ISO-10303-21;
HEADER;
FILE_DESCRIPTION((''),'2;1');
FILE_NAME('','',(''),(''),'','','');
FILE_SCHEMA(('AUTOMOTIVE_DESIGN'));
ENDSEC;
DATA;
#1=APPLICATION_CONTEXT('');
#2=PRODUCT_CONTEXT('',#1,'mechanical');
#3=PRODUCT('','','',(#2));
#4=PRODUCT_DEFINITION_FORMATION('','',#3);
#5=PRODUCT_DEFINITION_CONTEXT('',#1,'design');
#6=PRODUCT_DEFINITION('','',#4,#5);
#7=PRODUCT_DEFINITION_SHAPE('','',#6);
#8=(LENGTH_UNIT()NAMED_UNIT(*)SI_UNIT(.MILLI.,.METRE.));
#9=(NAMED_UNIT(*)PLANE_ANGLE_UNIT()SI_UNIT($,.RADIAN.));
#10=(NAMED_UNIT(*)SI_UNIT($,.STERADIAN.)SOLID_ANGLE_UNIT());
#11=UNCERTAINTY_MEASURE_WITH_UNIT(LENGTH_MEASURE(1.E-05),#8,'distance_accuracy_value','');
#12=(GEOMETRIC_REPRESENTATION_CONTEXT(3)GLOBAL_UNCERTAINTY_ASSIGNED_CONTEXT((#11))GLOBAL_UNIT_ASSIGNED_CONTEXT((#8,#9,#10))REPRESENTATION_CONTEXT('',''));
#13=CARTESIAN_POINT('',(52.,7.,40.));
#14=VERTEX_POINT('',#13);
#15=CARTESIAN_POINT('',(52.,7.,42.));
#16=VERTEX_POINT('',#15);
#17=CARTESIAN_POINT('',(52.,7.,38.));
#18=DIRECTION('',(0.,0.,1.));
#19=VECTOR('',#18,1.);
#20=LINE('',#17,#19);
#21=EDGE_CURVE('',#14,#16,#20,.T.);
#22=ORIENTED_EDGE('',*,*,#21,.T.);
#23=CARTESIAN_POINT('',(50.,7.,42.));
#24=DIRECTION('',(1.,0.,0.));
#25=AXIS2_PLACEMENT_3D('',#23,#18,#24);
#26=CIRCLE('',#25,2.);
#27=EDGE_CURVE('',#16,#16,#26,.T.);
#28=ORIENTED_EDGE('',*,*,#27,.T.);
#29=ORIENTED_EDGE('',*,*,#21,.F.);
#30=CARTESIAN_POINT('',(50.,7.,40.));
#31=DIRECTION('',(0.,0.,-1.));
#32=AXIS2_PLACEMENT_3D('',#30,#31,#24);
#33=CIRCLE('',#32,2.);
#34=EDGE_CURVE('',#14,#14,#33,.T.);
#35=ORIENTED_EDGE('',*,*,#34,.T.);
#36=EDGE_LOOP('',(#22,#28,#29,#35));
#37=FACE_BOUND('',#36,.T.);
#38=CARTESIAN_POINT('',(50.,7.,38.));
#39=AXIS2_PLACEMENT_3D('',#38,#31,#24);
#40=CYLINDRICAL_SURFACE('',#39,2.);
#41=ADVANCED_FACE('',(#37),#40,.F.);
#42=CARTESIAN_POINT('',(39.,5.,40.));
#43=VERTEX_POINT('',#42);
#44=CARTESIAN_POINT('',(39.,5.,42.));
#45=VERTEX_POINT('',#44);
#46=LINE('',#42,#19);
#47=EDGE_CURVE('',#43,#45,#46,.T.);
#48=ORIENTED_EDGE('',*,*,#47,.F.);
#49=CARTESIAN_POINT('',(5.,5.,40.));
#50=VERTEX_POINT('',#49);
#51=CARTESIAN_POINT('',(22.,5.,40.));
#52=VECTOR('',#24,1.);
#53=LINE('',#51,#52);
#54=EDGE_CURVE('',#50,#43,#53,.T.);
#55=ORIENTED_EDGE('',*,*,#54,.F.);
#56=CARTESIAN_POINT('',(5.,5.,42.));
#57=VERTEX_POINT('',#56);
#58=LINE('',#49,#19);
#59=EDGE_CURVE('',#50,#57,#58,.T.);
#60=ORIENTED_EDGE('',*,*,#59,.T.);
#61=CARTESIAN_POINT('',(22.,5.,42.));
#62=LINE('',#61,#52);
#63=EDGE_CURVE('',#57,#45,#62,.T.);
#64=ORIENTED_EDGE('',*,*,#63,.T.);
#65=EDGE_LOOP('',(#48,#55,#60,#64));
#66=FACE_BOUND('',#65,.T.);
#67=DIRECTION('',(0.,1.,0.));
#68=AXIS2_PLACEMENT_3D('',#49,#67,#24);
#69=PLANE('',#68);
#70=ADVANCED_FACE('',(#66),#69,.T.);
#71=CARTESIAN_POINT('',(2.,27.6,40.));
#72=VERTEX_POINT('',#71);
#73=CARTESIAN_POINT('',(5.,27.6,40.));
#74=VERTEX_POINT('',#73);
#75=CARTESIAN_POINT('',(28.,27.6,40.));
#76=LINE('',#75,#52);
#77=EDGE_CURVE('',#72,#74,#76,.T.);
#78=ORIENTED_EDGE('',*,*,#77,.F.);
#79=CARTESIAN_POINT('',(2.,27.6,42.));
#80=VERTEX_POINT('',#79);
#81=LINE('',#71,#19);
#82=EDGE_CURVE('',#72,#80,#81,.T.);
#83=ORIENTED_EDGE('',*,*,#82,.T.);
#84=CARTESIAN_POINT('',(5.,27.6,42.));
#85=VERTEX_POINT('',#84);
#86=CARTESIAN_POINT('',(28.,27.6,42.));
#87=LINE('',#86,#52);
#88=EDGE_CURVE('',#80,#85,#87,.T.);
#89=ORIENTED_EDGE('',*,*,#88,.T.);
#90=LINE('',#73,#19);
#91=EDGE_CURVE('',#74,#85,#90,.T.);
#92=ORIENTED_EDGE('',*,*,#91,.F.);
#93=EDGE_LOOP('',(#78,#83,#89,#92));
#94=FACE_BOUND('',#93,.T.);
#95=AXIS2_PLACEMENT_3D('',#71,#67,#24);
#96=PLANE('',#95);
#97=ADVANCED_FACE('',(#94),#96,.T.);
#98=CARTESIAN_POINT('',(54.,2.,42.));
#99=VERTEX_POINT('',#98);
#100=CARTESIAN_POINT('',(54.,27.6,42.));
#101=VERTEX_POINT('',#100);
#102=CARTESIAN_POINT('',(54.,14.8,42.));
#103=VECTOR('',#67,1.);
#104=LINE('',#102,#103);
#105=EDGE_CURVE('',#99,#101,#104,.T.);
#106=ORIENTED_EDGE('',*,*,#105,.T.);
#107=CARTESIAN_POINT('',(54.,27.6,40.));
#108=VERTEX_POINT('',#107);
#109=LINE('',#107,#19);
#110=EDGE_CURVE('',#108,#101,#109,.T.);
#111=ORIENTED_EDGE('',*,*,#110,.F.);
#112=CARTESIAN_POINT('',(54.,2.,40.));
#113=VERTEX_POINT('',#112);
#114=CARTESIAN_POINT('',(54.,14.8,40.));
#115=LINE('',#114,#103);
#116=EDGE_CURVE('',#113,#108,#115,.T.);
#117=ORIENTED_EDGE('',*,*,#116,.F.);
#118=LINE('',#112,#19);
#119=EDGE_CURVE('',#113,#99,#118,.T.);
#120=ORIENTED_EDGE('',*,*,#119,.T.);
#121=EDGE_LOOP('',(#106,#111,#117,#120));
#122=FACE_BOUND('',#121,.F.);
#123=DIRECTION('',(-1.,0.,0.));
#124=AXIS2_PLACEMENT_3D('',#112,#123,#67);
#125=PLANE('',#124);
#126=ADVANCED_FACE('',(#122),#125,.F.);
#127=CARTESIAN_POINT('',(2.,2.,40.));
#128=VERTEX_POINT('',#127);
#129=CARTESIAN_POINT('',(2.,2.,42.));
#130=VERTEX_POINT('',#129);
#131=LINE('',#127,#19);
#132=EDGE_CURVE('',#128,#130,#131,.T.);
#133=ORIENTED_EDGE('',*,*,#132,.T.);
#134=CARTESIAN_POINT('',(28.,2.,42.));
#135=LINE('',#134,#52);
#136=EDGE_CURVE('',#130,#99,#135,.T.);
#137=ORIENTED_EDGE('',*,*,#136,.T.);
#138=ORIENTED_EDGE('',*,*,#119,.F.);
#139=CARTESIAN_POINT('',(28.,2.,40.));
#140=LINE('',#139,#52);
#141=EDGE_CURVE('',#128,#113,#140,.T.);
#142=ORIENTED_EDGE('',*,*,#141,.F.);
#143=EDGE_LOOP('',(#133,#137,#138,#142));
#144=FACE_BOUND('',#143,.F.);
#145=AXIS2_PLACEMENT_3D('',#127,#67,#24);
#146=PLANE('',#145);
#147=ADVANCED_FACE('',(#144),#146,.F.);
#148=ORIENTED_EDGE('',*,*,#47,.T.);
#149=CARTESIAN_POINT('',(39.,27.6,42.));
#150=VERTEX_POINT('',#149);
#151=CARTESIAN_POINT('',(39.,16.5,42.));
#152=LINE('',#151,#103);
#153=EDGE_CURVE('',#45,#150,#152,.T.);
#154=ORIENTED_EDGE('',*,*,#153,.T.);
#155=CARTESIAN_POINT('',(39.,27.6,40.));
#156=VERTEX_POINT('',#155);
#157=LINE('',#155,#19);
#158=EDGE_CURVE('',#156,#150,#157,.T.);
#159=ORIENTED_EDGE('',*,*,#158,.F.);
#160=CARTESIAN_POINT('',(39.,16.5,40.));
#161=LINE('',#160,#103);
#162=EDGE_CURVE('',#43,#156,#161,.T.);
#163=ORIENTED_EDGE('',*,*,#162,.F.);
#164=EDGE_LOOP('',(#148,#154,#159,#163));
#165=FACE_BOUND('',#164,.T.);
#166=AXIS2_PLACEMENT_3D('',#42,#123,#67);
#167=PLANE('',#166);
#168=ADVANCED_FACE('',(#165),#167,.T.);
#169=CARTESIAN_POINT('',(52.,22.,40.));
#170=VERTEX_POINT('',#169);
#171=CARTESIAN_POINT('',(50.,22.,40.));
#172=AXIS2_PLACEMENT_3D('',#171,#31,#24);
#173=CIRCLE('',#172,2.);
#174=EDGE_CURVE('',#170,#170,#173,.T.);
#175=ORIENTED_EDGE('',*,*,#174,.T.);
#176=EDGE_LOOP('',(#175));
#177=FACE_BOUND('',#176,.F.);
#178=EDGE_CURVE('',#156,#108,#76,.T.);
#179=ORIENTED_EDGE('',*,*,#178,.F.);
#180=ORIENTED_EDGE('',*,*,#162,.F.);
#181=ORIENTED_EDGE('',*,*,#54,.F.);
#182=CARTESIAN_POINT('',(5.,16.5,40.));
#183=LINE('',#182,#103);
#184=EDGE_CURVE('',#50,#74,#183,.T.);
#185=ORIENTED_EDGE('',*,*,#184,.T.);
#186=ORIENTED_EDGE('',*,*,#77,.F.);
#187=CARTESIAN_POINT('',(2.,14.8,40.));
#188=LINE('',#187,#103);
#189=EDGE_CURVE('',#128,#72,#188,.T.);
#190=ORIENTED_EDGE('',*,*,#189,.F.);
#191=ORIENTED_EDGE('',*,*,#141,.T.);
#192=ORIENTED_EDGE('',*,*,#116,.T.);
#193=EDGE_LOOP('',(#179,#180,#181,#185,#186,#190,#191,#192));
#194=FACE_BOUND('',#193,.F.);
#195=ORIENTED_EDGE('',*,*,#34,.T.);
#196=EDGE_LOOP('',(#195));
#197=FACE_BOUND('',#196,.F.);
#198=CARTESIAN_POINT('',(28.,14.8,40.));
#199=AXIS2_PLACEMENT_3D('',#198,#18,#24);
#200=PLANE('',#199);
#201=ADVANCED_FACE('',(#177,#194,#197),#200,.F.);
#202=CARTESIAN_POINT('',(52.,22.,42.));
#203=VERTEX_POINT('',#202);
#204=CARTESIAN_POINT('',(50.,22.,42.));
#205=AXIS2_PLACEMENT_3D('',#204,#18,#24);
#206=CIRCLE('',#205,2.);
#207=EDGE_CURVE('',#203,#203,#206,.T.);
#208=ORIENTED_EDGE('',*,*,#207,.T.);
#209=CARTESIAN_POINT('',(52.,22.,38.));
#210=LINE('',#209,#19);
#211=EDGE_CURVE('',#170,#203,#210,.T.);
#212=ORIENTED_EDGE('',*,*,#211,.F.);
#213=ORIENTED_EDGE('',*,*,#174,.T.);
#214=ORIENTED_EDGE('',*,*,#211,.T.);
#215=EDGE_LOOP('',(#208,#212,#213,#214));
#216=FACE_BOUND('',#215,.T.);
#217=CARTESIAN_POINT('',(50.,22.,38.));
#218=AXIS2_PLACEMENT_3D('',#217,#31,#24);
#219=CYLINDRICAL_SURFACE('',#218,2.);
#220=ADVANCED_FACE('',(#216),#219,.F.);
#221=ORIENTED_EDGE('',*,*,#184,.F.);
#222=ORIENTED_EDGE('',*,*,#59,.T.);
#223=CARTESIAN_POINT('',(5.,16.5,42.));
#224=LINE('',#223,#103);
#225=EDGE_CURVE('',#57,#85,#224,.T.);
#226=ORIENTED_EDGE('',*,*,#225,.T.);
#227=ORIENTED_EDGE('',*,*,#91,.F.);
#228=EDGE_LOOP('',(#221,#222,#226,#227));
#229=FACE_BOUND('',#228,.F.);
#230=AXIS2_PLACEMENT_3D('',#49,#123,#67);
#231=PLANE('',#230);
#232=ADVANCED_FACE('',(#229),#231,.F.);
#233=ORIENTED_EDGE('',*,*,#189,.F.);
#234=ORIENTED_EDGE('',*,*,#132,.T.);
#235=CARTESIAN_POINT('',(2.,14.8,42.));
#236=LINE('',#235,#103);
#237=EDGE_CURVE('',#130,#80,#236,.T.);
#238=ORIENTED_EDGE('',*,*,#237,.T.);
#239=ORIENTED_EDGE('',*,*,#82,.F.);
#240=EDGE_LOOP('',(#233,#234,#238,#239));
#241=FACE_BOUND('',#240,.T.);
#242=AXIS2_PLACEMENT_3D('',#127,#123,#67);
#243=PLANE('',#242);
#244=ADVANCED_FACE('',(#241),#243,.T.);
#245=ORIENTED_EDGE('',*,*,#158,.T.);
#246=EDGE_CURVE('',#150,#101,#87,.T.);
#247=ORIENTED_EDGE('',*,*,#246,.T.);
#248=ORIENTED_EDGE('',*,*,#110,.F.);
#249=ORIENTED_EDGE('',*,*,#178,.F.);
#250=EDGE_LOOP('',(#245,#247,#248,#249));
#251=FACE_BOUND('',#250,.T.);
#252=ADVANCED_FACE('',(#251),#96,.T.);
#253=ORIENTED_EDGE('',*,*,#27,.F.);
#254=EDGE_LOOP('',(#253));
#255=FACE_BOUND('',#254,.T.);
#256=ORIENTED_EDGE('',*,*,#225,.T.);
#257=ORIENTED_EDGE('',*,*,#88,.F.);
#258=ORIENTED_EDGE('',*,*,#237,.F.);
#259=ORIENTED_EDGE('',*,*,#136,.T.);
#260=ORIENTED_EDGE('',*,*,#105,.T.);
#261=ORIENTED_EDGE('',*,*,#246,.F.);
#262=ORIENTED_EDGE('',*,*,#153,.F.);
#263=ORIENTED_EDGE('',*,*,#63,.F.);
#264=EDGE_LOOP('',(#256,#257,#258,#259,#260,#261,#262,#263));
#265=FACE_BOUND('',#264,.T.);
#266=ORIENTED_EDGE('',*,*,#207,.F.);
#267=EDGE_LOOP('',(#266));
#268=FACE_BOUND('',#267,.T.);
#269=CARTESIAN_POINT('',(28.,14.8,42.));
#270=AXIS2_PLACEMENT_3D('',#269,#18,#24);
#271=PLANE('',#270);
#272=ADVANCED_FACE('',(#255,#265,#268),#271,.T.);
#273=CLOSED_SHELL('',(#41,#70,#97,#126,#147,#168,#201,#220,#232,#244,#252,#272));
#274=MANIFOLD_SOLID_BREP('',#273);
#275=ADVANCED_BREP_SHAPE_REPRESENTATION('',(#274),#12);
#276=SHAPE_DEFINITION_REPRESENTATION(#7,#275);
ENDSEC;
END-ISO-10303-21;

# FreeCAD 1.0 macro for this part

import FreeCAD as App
import Part
import Sketcher


def add_polygon(sketch, points):
    """Adds a closed chain of lines whose ends are joined by coincident constraints."""
    first, n = sketch.GeometryCount, len(points)
    for a, b in zip(points, points[1:] + points[:1]):
        sketch.addGeometry(Part.LineSegment(App.Vector(*a, 0), App.Vector(*b, 0)), False)
    for i in range(n):
        sketch.addConstraint(Sketcher.Constraint("Coincident", first + i, 2, first + (i + 1) % n, 1))

doc = App.newDocument("Part")
params = doc.addObject("Spreadsheet::Sheet", "Params")
for row, (alias, value) in enumerate([
    ("sketch1_diameter", "4 mm"),
    ("pad1_length", "4 mm"),
    ("sketch2_diameter", "4 mm"),
    ("pad2_length", "4 mm"),
    ("sketch3_width", "34 mm"),
    ("sketch3_height", "23 mm"),
    ("pad3_length", "2 mm"),
    ("sketch4_width", "52 mm"),
    ("sketch4_height", "25.6 mm"),
    ("pad4_length", "2 mm"),
], start=1):
    params.set(f"A{row}", alias)
    params.set(f"B{row}", "=" + value)
    params.setAlias(f"B{row}", alias)

body = doc.addObject("PartDesign::Body", "Body")

sketch1 = body.newObject("Sketcher::SketchObject", "Sketch")
sketch1.AttachmentSupport = (doc.getObject("XY_Plane"), [""])
sketch1.MapMode = "FlatFace"
sketch1.AttachmentOffset = App.Placement(App.Vector(0, 0, 38), App.Rotation())
sketch1.addGeometry(Part.Circle(App.Vector(50, 7, 0), App.Vector(0, 0, 1), 2), False)
sketch1.addConstraint([
    Sketcher.Constraint("Diameter", 0, 4.0),
    Sketcher.Constraint("DistanceX", -1, 1, 0, 3, 50.0),
    Sketcher.Constraint("DistanceY", -1, 1, 0, 3, 7.0),
])
sketch1.setExpression("Constraints[0]", "Params.sketch1_diameter")
pad1 = body.newObject("PartDesign::Pad", "Pad")
pad1.Profile = sketch1
pad1.setExpression("Length", "Params.pad1_length")
body2 = doc.addObject("PartDesign::Body", "Body001")

sketch2 = body2.newObject("Sketcher::SketchObject", "Sketch001")
sketch2.AttachmentSupport = (doc.getObject("XY_Plane001"), [""])
sketch2.MapMode = "FlatFace"
sketch2.AttachmentOffset = App.Placement(App.Vector(0, 0, 38), App.Rotation())
sketch2.addGeometry(Part.Circle(App.Vector(50, 22, 0), App.Vector(0, 0, 1), 2), False)
sketch2.addConstraint([
    Sketcher.Constraint("Diameter", 0, 4.0),
    Sketcher.Constraint("DistanceX", -1, 1, 0, 3, 50.0),
    Sketcher.Constraint("DistanceY", -1, 1, 0, 3, 22.0),
])
sketch2.setExpression("Constraints[0]", "Params.sketch2_diameter")
pad2 = body2.newObject("PartDesign::Pad", "Pad001")
pad2.Profile = sketch2
pad2.setExpression("Length", "Params.pad2_length")
body3 = doc.addObject("PartDesign::Body", "Body002")
body3.AllowCompound = True

sketch3 = body3.newObject("Sketcher::SketchObject", "Sketch002")
sketch3.AttachmentSupport = (doc.getObject("XY_Plane002"), [""])
sketch3.MapMode = "FlatFace"
sketch3.AttachmentOffset = App.Placement(App.Vector(0, 0, 40), App.Rotation())
add_polygon(sketch3, [(5, 28), (5, 5), (39, 5), (39, 28)])
sketch3.addConstraint([
    Sketcher.Constraint("Vertical", 0),
    Sketcher.Constraint("Horizontal", 1),
    Sketcher.Constraint("Vertical", 2),
    Sketcher.Constraint("Horizontal", 3),
    Sketcher.Constraint("DistanceX", 1, 1, 1, 2, 34.0),
    Sketcher.Constraint("DistanceY", 0, 2, 0, 1, 23.0),
    Sketcher.Constraint("DistanceX", -1, 1, 0, 2, 5.0),
    Sketcher.Constraint("DistanceY", -1, 1, 0, 2, 5.0),
])
sketch3.setExpression("Constraints[8]", "Params.sketch3_width")
sketch3.setExpression("Constraints[9]", "Params.sketch3_height")
pad3 = body3.newObject("PartDesign::Pad", "Pad002")
pad3.Profile = sketch3
pad3.setExpression("Length", "Params.pad3_length")
doc.recompute()

boolean = body3.newObject("PartDesign::Boolean", "Boolean")
boolean.Type = "Fuse"
boolean.addObjects([body])
doc.recompute()

boolean2 = body3.newObject("PartDesign::Boolean", "Boolean001")
boolean2.Type = "Fuse"
boolean2.addObjects([body2])
body4 = doc.addObject("PartDesign::Body", "Body003")

sketch4 = body4.newObject("Sketcher::SketchObject", "Sketch003")
sketch4.AttachmentSupport = (doc.getObject("XY_Plane003"), [""])
sketch4.MapMode = "FlatFace"
sketch4.AttachmentOffset = App.Placement(App.Vector(0, 0, 40), App.Rotation())
add_polygon(sketch4, [(2, 28), (2, 2), (54, 2), (54, 28)])
sketch4.addConstraint([
    Sketcher.Constraint("Vertical", 0),
    Sketcher.Constraint("Horizontal", 1),
    Sketcher.Constraint("Vertical", 2),
    Sketcher.Constraint("Horizontal", 3),
    Sketcher.Constraint("DistanceX", 1, 1, 1, 2, 52.0),
    Sketcher.Constraint("DistanceY", 0, 2, 0, 1, 25.6),
    Sketcher.Constraint("DistanceX", -1, 1, 0, 2, 2.0),
    Sketcher.Constraint("DistanceY", -1, 1, 0, 2, 2.0),
])
sketch4.setExpression("Constraints[8]", "Params.sketch4_width")
sketch4.setExpression("Constraints[9]", "Params.sketch4_height")
pad4 = body4.newObject("PartDesign::Pad", "Pad003")
pad4.Profile = sketch4
pad4.setExpression("Length", "Params.pad4_length")
doc.recompute()

boolean3 = body4.newObject("PartDesign::Boolean", "Boolean002")
boolean3.Type = "Cut"
boolean3.addObjects([body3])

doc.recompute()
